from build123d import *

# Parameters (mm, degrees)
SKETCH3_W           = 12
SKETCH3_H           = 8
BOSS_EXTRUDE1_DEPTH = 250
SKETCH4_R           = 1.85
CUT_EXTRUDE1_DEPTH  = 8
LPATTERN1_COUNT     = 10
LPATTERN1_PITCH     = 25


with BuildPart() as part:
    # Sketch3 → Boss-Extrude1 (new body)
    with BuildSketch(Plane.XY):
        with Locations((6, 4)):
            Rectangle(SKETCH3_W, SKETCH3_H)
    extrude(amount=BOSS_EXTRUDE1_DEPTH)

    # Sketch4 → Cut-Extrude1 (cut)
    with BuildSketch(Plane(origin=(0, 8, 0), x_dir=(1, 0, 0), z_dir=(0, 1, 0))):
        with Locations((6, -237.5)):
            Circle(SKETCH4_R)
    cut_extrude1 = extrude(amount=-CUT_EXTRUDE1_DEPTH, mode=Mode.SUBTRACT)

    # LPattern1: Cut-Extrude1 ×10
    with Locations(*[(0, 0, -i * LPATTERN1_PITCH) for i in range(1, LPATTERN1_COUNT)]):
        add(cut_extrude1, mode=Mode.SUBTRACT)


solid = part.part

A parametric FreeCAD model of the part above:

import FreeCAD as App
import Part
import Sketcher
from FreeCAD import Vector
Q = App.Units.Quantity


def add_polygon(sketch, points):
    """Adds a closed chain of lines whose ends are joined by coincident constraints."""
    first, n = sketch.GeometryCount, len(points)
    for a, b in zip(points, points[1:] + points[:1]):
        sketch.addGeometry(Part.LineSegment(App.Vector(*a, 0), App.Vector(*b, 0)), False)
    for i in range(n):
        sketch.addConstraint(Sketcher.Constraint("Coincident", first + i, 2, first + (i + 1) % n, 1))

doc = App.newDocument("Part")
body = doc.addObject("PartDesign::Body", "Body")

# Sketch on XY plane
sketch1 = doc.addObject("Sketcher::SketchObject", "Sketch")
body.addObject(sketch1)
sketch1.AttachmentSupport = (doc.XY_Plane, [""])
sketch1.MapMode = "FlatFace"
add_polygon(sketch1, [(0, 8), (0, 0), (12, 0), (12, 8)])  # lines 0-3
sketch1.addConstraint(Sketcher.Constraint("Vertical", 0))
sketch1.addConstraint(Sketcher.Constraint("Horizontal", 1))
sketch1.addConstraint(Sketcher.Constraint("Vertical", 2))
sketch1.addConstraint(Sketcher.Constraint("Horizontal", 3))
sketch1.addConstraint(Sketcher.Constraint("Coincident", 0, 2, -1, 1))
sketch1.addConstraint(Sketcher.Constraint("DistanceX", 1, 1, 1, 2, Q("12 mm")))
sketch1.addConstraint(Sketcher.Constraint("DistanceY", 0, 2, 0, 1, Q("8 mm")))
pad1 = doc.addObject("PartDesign::Pad", "Pad")
body.addObject(pad1)
pad1.Profile = sketch1
pad1.Length = 250

# Sketch on XZ plane
sketch2 = doc.addObject("Sketcher::SketchObject", "Sketch001")
body.addObject(sketch2)
sketch2.AttachmentSupport = (doc.XZ_Plane, [""])
sketch2.MapMode = "FlatFace"
sketch2.AttachmentOffset = App.Placement(Vector(0, 0, -8), App.Rotation())
sketch2.addGeometry(Part.Circle(Vector(6, 237.5, 0), Vector(0, 0, 1), 1.9), False)
sketch2.addConstraint(Sketcher.Constraint("Diameter", 0, Q("3.7 mm")))
sketch2.addConstraint(Sketcher.Constraint("DistanceX", -1, 1, 0, 3, Q("6 mm")))
sketch2.addConstraint(Sketcher.Constraint("DistanceY", -1, 1, 0, 3, Q("237.5 mm")))
pocket1 = doc.addObject("PartDesign::Pocket", "Pocket")
body.addObject(pocket1)
pocket1.Profile = sketch2
pocket1.Length = 8
pocket1.Reversed = True
doc.recompute()

linearpattern = doc.addObject("PartDesign::LinearPattern", "LinearPattern")
body.addObject(linearpattern)
linearpattern.Originals = [pocket1]
linearpattern.Direction = (doc.Z_Axis, [""])
linearpattern.Mode = "offset"
linearpattern.Offset = 25
linearpattern.Occurrences = 10
linearpattern.Reversed = True
body.Tip = linearpattern

doc.recompute()
